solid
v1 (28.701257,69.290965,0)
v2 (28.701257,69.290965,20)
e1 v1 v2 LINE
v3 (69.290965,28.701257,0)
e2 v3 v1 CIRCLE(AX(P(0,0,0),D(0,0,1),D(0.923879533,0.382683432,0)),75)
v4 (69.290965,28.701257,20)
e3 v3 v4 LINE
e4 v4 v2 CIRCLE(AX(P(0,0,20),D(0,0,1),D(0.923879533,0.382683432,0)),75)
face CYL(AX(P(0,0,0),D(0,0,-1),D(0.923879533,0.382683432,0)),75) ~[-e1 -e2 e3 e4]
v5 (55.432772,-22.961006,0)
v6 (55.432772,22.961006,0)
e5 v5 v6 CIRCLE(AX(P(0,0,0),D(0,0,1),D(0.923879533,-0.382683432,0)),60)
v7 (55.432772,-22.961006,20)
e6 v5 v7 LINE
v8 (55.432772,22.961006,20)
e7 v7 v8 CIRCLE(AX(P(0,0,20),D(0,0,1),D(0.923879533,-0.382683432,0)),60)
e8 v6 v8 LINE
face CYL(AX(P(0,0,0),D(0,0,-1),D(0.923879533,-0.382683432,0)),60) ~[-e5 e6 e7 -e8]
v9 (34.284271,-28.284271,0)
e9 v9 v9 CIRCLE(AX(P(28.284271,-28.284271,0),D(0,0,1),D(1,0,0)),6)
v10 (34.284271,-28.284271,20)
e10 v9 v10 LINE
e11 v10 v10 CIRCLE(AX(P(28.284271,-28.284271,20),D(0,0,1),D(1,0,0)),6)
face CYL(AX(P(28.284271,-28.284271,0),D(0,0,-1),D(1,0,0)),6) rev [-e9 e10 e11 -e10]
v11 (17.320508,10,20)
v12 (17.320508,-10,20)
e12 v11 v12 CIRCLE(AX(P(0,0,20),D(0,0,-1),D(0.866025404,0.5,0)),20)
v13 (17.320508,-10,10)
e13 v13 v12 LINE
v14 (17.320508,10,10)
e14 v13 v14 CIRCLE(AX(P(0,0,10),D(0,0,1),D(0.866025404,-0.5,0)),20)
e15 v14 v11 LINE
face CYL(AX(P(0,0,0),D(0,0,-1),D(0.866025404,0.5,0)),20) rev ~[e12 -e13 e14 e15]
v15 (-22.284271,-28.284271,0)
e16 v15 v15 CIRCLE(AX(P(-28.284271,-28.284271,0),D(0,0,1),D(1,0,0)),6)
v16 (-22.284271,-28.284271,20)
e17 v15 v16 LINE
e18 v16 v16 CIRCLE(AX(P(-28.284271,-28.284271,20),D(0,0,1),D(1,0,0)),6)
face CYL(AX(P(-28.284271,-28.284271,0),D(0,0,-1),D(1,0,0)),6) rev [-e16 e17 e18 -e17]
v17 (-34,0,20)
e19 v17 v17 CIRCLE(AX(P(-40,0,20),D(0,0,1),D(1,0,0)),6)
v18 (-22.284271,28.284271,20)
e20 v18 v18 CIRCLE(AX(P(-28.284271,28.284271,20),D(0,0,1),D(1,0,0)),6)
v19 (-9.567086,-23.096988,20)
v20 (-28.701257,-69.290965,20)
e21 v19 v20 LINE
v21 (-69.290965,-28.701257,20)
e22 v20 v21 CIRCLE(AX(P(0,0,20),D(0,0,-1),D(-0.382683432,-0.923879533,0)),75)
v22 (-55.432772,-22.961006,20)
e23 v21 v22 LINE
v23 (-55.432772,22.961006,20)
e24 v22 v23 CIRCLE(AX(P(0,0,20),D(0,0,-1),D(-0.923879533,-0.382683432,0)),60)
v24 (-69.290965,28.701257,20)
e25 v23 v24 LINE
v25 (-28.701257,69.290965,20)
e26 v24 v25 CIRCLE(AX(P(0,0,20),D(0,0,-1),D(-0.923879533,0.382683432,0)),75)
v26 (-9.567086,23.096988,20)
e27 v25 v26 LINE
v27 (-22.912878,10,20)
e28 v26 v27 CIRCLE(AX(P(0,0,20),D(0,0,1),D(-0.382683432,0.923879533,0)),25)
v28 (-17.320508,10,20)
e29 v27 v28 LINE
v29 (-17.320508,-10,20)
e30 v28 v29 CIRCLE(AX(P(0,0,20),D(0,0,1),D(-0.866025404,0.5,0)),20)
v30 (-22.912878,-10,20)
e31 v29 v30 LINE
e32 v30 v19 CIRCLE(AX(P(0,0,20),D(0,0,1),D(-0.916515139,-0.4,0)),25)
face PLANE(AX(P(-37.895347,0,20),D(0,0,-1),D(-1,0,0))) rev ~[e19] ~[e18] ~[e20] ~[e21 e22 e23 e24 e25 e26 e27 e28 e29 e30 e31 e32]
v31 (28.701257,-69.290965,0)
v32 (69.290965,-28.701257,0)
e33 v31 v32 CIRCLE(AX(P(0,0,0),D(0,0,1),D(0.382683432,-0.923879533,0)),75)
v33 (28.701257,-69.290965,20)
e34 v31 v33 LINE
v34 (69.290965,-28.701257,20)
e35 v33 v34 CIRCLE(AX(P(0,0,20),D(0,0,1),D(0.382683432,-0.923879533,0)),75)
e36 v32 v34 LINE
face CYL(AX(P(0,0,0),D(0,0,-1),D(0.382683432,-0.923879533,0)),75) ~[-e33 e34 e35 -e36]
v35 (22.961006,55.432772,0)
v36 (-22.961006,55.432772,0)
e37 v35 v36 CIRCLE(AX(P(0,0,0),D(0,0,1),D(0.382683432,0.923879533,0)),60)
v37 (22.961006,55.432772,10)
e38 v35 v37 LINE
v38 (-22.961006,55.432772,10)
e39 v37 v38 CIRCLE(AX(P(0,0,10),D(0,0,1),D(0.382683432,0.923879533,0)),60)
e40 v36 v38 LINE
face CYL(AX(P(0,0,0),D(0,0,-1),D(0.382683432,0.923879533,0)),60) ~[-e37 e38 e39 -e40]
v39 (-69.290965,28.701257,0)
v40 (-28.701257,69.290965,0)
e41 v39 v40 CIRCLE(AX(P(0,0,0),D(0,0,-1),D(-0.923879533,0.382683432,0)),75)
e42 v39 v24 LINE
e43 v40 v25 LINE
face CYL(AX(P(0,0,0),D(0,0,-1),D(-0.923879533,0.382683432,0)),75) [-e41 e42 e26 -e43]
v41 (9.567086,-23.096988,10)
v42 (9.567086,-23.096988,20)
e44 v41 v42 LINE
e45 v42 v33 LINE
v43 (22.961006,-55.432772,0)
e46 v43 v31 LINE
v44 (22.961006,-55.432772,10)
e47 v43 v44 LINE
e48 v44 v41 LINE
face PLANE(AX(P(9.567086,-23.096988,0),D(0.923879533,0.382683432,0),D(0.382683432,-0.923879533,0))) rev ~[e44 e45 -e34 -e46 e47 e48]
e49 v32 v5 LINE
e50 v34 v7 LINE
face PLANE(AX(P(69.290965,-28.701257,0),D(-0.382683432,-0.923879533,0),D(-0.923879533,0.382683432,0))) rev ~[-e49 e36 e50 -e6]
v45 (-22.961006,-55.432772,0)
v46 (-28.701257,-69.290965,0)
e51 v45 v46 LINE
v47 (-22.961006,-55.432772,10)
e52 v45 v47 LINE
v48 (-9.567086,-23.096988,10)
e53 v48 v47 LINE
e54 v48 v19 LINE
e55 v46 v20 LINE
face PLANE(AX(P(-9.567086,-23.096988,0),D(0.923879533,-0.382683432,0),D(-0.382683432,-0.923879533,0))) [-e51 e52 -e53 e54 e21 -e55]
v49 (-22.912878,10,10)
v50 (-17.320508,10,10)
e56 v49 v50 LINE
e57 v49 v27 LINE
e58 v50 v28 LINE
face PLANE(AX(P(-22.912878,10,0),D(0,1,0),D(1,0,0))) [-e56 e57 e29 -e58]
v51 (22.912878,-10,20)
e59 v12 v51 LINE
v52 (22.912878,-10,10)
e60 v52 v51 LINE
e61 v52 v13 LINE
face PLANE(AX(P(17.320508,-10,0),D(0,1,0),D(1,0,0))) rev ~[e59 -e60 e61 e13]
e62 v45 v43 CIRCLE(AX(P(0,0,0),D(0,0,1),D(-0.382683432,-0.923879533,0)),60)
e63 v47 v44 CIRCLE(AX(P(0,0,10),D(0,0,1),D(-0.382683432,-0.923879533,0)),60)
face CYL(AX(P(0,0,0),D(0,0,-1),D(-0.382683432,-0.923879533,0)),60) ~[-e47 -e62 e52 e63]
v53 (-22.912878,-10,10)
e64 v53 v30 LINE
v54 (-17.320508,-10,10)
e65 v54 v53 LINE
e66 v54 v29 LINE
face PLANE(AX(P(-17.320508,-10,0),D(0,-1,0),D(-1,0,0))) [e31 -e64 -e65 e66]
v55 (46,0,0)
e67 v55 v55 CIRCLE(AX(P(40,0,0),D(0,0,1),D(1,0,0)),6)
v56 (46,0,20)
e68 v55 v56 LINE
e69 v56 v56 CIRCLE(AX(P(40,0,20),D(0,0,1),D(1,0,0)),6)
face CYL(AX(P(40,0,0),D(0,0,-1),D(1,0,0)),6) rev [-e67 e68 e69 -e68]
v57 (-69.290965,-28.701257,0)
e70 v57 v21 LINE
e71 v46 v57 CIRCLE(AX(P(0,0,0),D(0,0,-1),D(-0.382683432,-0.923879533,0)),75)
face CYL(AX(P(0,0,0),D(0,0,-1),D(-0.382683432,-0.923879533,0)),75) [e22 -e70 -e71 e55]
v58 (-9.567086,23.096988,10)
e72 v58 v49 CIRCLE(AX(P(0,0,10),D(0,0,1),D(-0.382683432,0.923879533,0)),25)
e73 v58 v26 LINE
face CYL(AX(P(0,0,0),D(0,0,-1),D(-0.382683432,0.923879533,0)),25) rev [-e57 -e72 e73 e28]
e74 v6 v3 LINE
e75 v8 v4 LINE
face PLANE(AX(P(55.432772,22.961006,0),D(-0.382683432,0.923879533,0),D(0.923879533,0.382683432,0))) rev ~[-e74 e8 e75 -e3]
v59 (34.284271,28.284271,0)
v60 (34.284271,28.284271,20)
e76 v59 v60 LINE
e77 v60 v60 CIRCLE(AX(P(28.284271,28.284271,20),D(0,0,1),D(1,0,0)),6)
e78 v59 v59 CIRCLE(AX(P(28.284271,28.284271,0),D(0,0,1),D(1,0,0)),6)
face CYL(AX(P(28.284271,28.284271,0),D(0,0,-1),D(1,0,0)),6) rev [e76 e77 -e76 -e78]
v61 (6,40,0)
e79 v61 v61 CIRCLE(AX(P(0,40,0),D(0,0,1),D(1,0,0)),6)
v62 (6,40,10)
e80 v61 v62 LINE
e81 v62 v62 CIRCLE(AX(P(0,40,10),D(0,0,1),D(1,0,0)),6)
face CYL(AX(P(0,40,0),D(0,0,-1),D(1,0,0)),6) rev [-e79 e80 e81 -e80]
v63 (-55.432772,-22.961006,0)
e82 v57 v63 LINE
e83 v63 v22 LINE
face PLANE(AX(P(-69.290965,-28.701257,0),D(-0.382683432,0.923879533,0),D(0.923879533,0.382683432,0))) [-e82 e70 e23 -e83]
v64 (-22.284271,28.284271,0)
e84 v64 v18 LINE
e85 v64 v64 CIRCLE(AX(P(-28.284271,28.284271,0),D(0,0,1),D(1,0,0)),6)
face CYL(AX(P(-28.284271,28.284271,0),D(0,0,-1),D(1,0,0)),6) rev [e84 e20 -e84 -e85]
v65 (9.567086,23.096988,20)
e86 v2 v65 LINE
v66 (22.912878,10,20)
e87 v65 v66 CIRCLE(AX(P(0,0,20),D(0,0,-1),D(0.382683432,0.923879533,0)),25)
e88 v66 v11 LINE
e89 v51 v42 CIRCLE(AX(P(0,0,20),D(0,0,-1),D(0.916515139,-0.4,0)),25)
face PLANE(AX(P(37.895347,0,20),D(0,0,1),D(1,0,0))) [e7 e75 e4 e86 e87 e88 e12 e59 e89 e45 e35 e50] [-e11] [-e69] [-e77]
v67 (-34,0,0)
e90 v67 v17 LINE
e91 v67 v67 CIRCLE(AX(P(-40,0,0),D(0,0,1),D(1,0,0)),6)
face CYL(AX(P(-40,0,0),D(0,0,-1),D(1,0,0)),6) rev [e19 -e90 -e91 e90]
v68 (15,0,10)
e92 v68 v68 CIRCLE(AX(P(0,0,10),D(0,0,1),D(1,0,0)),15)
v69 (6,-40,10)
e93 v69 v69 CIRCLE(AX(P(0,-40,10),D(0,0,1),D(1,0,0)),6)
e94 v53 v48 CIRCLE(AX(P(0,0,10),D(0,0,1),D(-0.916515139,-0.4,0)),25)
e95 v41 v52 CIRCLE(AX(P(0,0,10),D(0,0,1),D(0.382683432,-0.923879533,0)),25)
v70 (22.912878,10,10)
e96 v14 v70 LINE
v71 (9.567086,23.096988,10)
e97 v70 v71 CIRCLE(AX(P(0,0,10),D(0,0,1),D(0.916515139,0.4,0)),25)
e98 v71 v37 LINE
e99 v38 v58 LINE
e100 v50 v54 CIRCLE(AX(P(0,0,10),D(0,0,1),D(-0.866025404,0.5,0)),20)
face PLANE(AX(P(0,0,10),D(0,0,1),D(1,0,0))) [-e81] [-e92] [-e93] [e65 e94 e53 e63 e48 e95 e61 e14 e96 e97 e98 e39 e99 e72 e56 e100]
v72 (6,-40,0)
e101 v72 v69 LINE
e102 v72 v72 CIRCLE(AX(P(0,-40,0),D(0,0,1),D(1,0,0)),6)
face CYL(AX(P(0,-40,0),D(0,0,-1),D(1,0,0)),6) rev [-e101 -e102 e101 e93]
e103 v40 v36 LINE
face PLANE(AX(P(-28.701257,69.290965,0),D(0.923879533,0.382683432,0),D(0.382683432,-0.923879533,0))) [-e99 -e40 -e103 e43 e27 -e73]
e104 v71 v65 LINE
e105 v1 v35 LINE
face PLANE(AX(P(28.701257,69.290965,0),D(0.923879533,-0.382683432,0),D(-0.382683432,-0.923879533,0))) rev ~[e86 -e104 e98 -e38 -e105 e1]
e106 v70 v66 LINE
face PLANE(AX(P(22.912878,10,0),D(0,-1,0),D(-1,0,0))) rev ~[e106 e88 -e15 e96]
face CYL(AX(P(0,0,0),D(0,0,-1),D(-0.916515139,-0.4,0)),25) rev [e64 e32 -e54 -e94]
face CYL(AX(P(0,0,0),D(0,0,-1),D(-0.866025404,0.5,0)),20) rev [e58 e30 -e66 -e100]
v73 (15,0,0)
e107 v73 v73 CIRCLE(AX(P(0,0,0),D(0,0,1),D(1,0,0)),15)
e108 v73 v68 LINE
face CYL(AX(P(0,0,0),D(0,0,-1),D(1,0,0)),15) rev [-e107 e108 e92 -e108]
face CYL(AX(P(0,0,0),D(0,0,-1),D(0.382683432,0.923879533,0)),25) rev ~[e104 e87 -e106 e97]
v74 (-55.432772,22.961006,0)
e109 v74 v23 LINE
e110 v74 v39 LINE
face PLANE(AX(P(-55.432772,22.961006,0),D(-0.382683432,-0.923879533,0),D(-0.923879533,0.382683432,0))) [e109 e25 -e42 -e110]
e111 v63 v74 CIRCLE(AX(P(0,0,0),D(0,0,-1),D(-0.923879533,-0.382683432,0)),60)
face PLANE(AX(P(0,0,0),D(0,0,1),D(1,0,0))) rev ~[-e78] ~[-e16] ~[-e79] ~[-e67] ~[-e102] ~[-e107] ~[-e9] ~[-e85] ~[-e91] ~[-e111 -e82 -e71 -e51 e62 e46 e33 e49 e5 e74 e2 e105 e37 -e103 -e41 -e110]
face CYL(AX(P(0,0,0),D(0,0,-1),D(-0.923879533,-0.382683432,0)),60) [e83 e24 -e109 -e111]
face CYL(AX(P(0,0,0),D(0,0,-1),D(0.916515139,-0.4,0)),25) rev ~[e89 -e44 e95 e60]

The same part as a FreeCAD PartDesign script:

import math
import FreeCAD as App
import Part
import Sketcher
Q = App.Units.Quantity

doc = App.newDocument("Part")
body = doc.addObject("PartDesign::Body", "Body")

sketch1 = body.newObject("Sketcher::SketchObject", "Sketch")
sketch1.AttachmentSupport = (doc.getObject("XY_Plane"), [""])
sketch1.MapMode = "FlatFace"
sketch1.addGeometry([
    Part.LineSegment(App.Vector(17.320508, -10, 0), App.Vector(22.912878, -10, 0)),
    Part.ArcOfCircle(Part.Circle(App.Vector(0, 0, 0), App.Vector(0, 0, 1), 25), math.radians(-67.5), math.radians(-23.578178)),
    Part.LineSegment(App.Vector(9.567086, -23.096988, 0), App.Vector(28.701257, -69.290965, 0)),
    Part.ArcOfCircle(Part.Circle(App.Vector(0, 0, 0), App.Vector(0, 0, 1), 75), math.radians(-67.5), math.radians(-22.5)),
    Part.LineSegment(App.Vector(69.290965, -28.701257, 0), App.Vector(55.432772, -22.961006, 0)),
    Part.ArcOfCircle(Part.Circle(App.Vector(0, 0, 0), App.Vector(0, 0, 1), 60), math.radians(-22.5), math.radians(22.5)),
    Part.LineSegment(App.Vector(55.432772, 22.961006, 0), App.Vector(69.290965, 28.701257, 0)),
    Part.ArcOfCircle(Part.Circle(App.Vector(0, 0, 0), App.Vector(0, 0, 1), 75), math.radians(22.5), math.radians(67.5)),
    Part.LineSegment(App.Vector(28.701257, 69.290965, 0), App.Vector(9.567086, 23.096988, 0)),
    Part.ArcOfCircle(Part.Circle(App.Vector(0, 0, 0), App.Vector(0, 0, 1), 25), math.radians(23.578178), math.radians(67.5)),
    Part.LineSegment(App.Vector(22.912878, 10, 0), App.Vector(17.320508, 10, 0)),
    Part.ArcOfCircle(Part.Circle(App.Vector(0, 0, 0), App.Vector(0, 0, 1), 20), math.radians(-30), math.radians(30)),
    Part.Circle(App.Vector(28.284271, -28.284271, 0), App.Vector(0, 0, 1), 6),
    Part.Circle(App.Vector(28.284271, 28.284271, 0), App.Vector(0, 0, 1), 6),
    Part.Circle(App.Vector(40, 0, 0), App.Vector(0, 0, 1), 6),
], False)
sketch1.addConstraint([
    Sketcher.Constraint("Coincident", 0, 2, 1, 2),
    Sketcher.Constraint("Coincident", 1, 1, 2, 1),
    Sketcher.Constraint("Coincident", 2, 2, 3, 1),
    Sketcher.Constraint("Coincident", 3, 2, 4, 1),
    Sketcher.Constraint("Coincident", 4, 2, 5, 1),
    Sketcher.Constraint("Coincident", 5, 2, 6, 1),
    Sketcher.Constraint("Coincident", 6, 2, 7, 1),
    Sketcher.Constraint("Coincident", 7, 2, 8, 1),
    Sketcher.Constraint("Coincident", 8, 2, 9, 2),
    Sketcher.Constraint("Coincident", 9, 1, 10, 1),
    Sketcher.Constraint("Coincident", 10, 2, 11, 2),
    Sketcher.Constraint("Coincident", 11, 1, 0, 1),
    Sketcher.Constraint("Horizontal", 0),
    Sketcher.Constraint("Horizontal", 10),
    Sketcher.Constraint("Coincident", 1, 3, -1, 1),
    Sketcher.Constraint("Coincident", 3, 3, -1, 1),
    Sketcher.Constraint("Coincident", 5, 3, -1, 1),
    Sketcher.Constraint("Coincident", 7, 3, -1, 1),
    Sketcher.Constraint("Coincident", 9, 3, -1, 1),
    Sketcher.Constraint("Coincident", 11, 3, -1, 1),
    Sketcher.Constraint("Equal", 3, 7),
    Sketcher.Constraint("Equal", 1, 9),
    Sketcher.Constraint("Equal", 12, 13),
    Sketcher.Constraint("Equal", 13, 14),
    Sketcher.Constraint("Symmetric", 12, 3, 13, 3, -1),
    Sketcher.Constraint("PointOnObject", 14, 3, -1),
    Sketcher.Constraint("Perpendicular", 2, 6),
    Sketcher.Constraint("Perpendicular", 4, 8),
    Sketcher.Constraint("Vertical", 4, 2, 5, 2),
    Sketcher.Constraint("Vertical", 3, 2, 6, 2),
    Sketcher.Constraint("Vertical", 2, 2, 7, 2),
    Sketcher.Constraint("Vertical", 0, 2, 9, 1),
    Sketcher.Constraint("Diameter", 12, 12.0),
    Sketcher.Constraint("Radius", 1, 25.0),
    Sketcher.Constraint("Radius", 3, 75.0),
    Sketcher.Constraint("Radius", 5, 60.0),
    Sketcher.Constraint("Radius", 11, 20.0),
    Sketcher.Constraint("DistanceX", -1, 1, 14, 3, 40.0),
    Sketcher.Constraint("DistanceY", 0, 2, -1, 1, 10.0),
    Sketcher.Constraint("Angle", 2, Q("-67.5 deg")),
    Sketcher.Constraint("DistanceX", 12, 3, 4, 2, 27.148501),
    Sketcher.Constraint("DistanceX", -1, 1, 12, 3, 28.284271),
    Sketcher.Constraint("DistanceY", 12, 3, -1, 1, 28.284271),
    Sketcher.Constraint("DistanceY", 1, 1, -1, 1, 23.096988),
])
pad1 = body.newObject("PartDesign::Pad", "Pad")
pad1.Profile = sketch1
pad1.Length = 20
body2 = doc.addObject("PartDesign::Body", "Body001")

sketch2 = body2.newObject("Sketcher::SketchObject", "Sketch001")
sketch2.AttachmentSupport = (doc.getObject("XY_Plane001"), [""])
sketch2.MapMode = "FlatFace"
sketch2.addGeometry([
    Part.ArcOfCircle(Part.Circle(App.Vector(0, 0, 0), App.Vector(0, 0, 1), 75), math.radians(-157.5), math.radians(-112.5)),
    Part.LineSegment(App.Vector(-28.701257, -69.290965, 0), App.Vector(-9.567086, -23.096988, 0)),
    Part.ArcOfCircle(Part.Circle(App.Vector(0, 0, 0), App.Vector(0, 0, 1), 25), math.radians(-156.421822), math.radians(-112.5)),
    Part.LineSegment(App.Vector(-22.912878, -10, 0), App.Vector(-17.320508, -10, 0)),
    Part.ArcOfCircle(Part.Circle(App.Vector(0, 0, 0), App.Vector(0, 0, 1), 20), math.radians(150), math.radians(210)),
    Part.LineSegment(App.Vector(-17.320508, 10, 0), App.Vector(-22.912878, 10, 0)),
    Part.ArcOfCircle(Part.Circle(App.Vector(0, 0, 0), App.Vector(0, 0, 1), 25), math.radians(112.5), math.radians(156.421822)),
    Part.LineSegment(App.Vector(-9.567086, 23.096988, 0), App.Vector(-28.701257, 69.290965, 0)),
    Part.ArcOfCircle(Part.Circle(App.Vector(0, 0, 0), App.Vector(0, 0, 1), 75), math.radians(112.5), math.radians(157.5)),
    Part.LineSegment(App.Vector(-69.290965, 28.701257, 0), App.Vector(-55.432772, 22.961006, 0)),
    Part.ArcOfCircle(Part.Circle(App.Vector(0, 0, 0), App.Vector(0, 0, 1), 60), math.radians(157.5), math.radians(202.5)),
    Part.LineSegment(App.Vector(-55.432772, -22.961006, 0), App.Vector(-69.290965, -28.701257, 0)),
    Part.Circle(App.Vector(-28.284271, -28.284271, 0), App.Vector(0, 0, 1), 6),
    Part.Circle(App.Vector(-28.284271, 28.284271, 0), App.Vector(0, 0, 1), 6),
    Part.Circle(App.Vector(-40, 0, 0), App.Vector(0, 0, 1), 6),
], False)
sketch2.addConstraint([
    Sketcher.Constraint("Coincident", 0, 2, 1, 1),
    Sketcher.Constraint("Coincident", 1, 2, 2, 2),
    Sketcher.Constraint("Coincident", 2, 1, 3, 1),
    Sketcher.Constraint("Coincident", 3, 2, 4, 2),
    Sketcher.Constraint("Coincident", 4, 1, 5, 1),
    Sketcher.Constraint("Coincident", 5, 2, 6, 2),
    Sketcher.Constraint("Coincident", 6, 1, 7, 1),
    Sketcher.Constraint("Coincident", 7, 2, 8, 1),
    Sketcher.Constraint("Coincident", 8, 2, 9, 1),
    Sketcher.Constraint("Coincident", 9, 2, 10, 1),
    Sketcher.Constraint("Coincident", 10, 2, 11, 1),
    Sketcher.Constraint("Coincident", 11, 2, 0, 1),
    Sketcher.Constraint("Horizontal", 3),
    Sketcher.Constraint("Horizontal", 5),
    Sketcher.Constraint("Coincident", 0, 3, -1, 1),
    Sketcher.Constraint("Coincident", 2, 3, -1, 1),
    Sketcher.Constraint("Coincident", 4, 3, -1, 1),
    Sketcher.Constraint("Coincident", 6, 3, -1, 1),
    Sketcher.Constraint("Coincident", 8, 3, -1, 1),
    Sketcher.Constraint("Coincident", 10, 3, -1, 1),
    Sketcher.Constraint("Equal", 2, 6),
    Sketcher.Constraint("Equal", 0, 8),
    Sketcher.Constraint("Equal", 12, 13),
    Sketcher.Constraint("Equal", 13, 14),
    Sketcher.Constraint("Symmetric", 12, 3, 13, 3, -1),
    Sketcher.Constraint("PointOnObject", 14, 3, -1),
    Sketcher.Constraint("Perpendicular", 1, 9),
    Sketcher.Constraint("Perpendicular", 7, 11),
    Sketcher.Constraint("Vertical", 3, 2, 4, 1),
    Sketcher.Constraint("Vertical", 1, 2, 6, 1),
    Sketcher.Constraint("Vertical", 0, 2, 7, 2),
    Sketcher.Constraint("Vertical", 9, 2, 10, 2),
    Sketcher.Constraint("Diameter", 12, 12.0),
    Sketcher.Constraint("Radius", 0, 75.0),
    Sketcher.Constraint("Radius", 2, 25.0),
    Sketcher.Constraint("Radius", 4, 20.0),
    Sketcher.Constraint("Radius", 10, 60.0),
    Sketcher.Constraint("DistanceX", 14, 3, -1, 1, 40.0),
    Sketcher.Constraint("DistanceY", 2, 1, -1, 1, 10.0),
    Sketcher.Constraint("Angle", 1, Q("67.5 deg")),
    Sketcher.Constraint("DistanceX", 9, 2, 13, 3, 27.148501),
    Sketcher.Constraint("DistanceX", 12, 3, -1, 1, 28.284271),
    Sketcher.Constraint("DistanceY", 12, 3, -1, 1, 28.284271),
    Sketcher.Constraint("DistanceY", 1, 2, -1, 1, 23.096988),
])
pad2 = body2.newObject("PartDesign::Pad", "Pad001")
pad2.Profile = sketch2
pad2.Length = 20
body.AllowCompound = True
doc.recompute()

boolean = body.newObject("PartDesign::Boolean", "Boolean")
boolean.Type = "Fuse"
boolean.addObjects([body2])

sketch3 = body.newObject("Sketcher::SketchObject", "Sketch002")
sketch3.AttachmentSupport = (doc.getObject("XY_Plane"), [""])
sketch3.MapMode = "FlatFace"
sketch3.addGeometry([
    Part.ArcOfCircle(Part.Circle(App.Vector(0, 0, 0), App.Vector(0, 0, 1), 20), math.radians(-30), math.radians(30)),
    Part.LineSegment(App.Vector(17.320508, 10, 0), App.Vector(22.912878, 10, 0)),
    Part.ArcOfCircle(Part.Circle(App.Vector(0, 0, 0), App.Vector(0, 0, 1), 25), math.radians(23.578178), math.radians(67.5)),
    Part.LineSegment(App.Vector(9.567086, 23.096988, 0), App.Vector(22.961006, 55.432772, 0)),
    Part.ArcOfCircle(Part.Circle(App.Vector(0, 0, 0), App.Vector(0, 0, 1), 60), math.radians(67.5), math.radians(112.5)),
    Part.LineSegment(App.Vector(-22.961006, 55.432772, 0), App.Vector(-9.567086, 23.096988, 0)),
    Part.ArcOfCircle(Part.Circle(App.Vector(0, 0, 0), App.Vector(0, 0, 1), 25), math.radians(112.5), math.radians(156.421822)),
    Part.LineSegment(App.Vector(-22.912878, 10, 0), App.Vector(-17.320508, 10, 0)),
    Part.ArcOfCircle(Part.Circle(App.Vector(0, 0, 0), App.Vector(0, 0, 1), 20), math.radians(150), math.radians(210)),
    Part.LineSegment(App.Vector(-17.320508, -10, 0), App.Vector(-22.912878, -10, 0)),
    Part.ArcOfCircle(Part.Circle(App.Vector(0, 0, 0), App.Vector(0, 0, 1), 25), math.radians(-156.421822), math.radians(-112.5)),
    Part.LineSegment(App.Vector(-9.567086, -23.096988, 0), App.Vector(-22.961006, -55.432772, 0)),
    Part.ArcOfCircle(Part.Circle(App.Vector(0, 0, 0), App.Vector(0, 0, 1), 60), math.radians(-112.5), math.radians(-67.5)),
    Part.LineSegment(App.Vector(22.961006, -55.432772, 0), App.Vector(9.567086, -23.096988, 0)),
    Part.ArcOfCircle(Part.Circle(App.Vector(0, 0, 0), App.Vector(0, 0, 1), 25), math.radians(-67.5), math.radians(-23.578178)),
    Part.LineSegment(App.Vector(22.912878, -10, 0), App.Vector(17.320508, -10, 0)),
    Part.Circle(App.Vector(0, -40, 0), App.Vector(0, 0, 1), 6),
    Part.Circle(App.Vector(0, 0, 0), App.Vector(0, 0, 1), 15),
    Part.Circle(App.Vector(0, 40, 0), App.Vector(0, 0, 1), 6),
], False)
sketch3.addConstraint([
    Sketcher.Constraint("Coincident", 0, 2, 1, 1),
    Sketcher.Constraint("Coincident", 1, 2, 2, 1),
    Sketcher.Constraint("Coincident", 2, 2, 3, 1),
    Sketcher.Constraint("Coincident", 3, 2, 4, 1),
    Sketcher.Constraint("Coincident", 4, 2, 5, 1),
    Sketcher.Constraint("Coincident", 5, 2, 6, 1),
    Sketcher.Constraint("Coincident", 6, 2, 7, 1),
    Sketcher.Constraint("Coincident", 7, 2, 8, 1),
    Sketcher.Constraint("Coincident", 8, 2, 9, 1),
    Sketcher.Constraint("Coincident", 9, 2, 10, 1),
    Sketcher.Constraint("Coincident", 10, 2, 11, 1),
    Sketcher.Constraint("Coincident", 11, 2, 12, 1),
    Sketcher.Constraint("Coincident", 12, 2, 13, 1),
    Sketcher.Constraint("Coincident", 13, 2, 14, 1),
    Sketcher.Constraint("Coincident", 14, 2, 15, 1),
    Sketcher.Constraint("Coincident", 15, 2, 0, 1),
    Sketcher.Constraint("Horizontal", 1),
    Sketcher.Constraint("Horizontal", 7),
    Sketcher.Constraint("Horizontal", 9),
    Sketcher.Constraint("Horizontal", 15),
    Sketcher.Constraint("Coincident", 0, 3, -1, 1),
    Sketcher.Constraint("Coincident", 2, 3, -1, 1),
    Sketcher.Constraint("Coincident", 4, 3, -1, 1),
    Sketcher.Constraint("Coincident", 6, 3, -1, 1),
    Sketcher.Constraint("Coincident", 8, 3, -1, 1),
    Sketcher.Constraint("Coincident", 10, 3, -1, 1),
    Sketcher.Constraint("Coincident", 12, 3, -1, 1),
    Sketcher.Constraint("Coincident", 14, 3, -1, 1),
    Sketcher.Constraint("Coincident", 17, 3, -1, 1),
    Sketcher.Constraint("Equal", 2, 6),
    Sketcher.Constraint("Equal", 0, 8),
    Sketcher.Constraint("Equal", 6, 10),
    Sketcher.Constraint("Equal", 4, 12),
    Sketcher.Constraint("Equal", 10, 14),
    Sketcher.Constraint("Equal", 16, 18),
    Sketcher.Constraint("Symmetric", 16, 3, 18, 3, -1, 1),
    Sketcher.Constraint("PointOnObject", 16, 3, -2),
    Sketcher.Constraint("Parallel", 3, 11),
    Sketcher.Constraint("Parallel", 5, 13),
    Sketcher.Constraint("Horizontal", 3, 2, 4, 2),
    Sketcher.Constraint("Horizontal", 2, 2, 5, 2),
    Sketcher.Constraint("Horizontal", 1, 2, 6, 2),
    Sketcher.Constraint("Horizontal", 11, 2, 12, 2),
    Sketcher.Constraint("Horizontal", 9, 2, 14, 2),
    Sketcher.Constraint("Vertical", 7, 2, 8, 2),
    Sketcher.Constraint("Vertical", 5, 2, 10, 2),
    Sketcher.Constraint("Diameter", 16, 12.0),
    Sketcher.Constraint("Diameter", 17, 30.0),
    Sketcher.Constraint("Radius", 0, 20.0),
    Sketcher.Constraint("Radius", 2, 25.0),
    Sketcher.Constraint("Radius", 4, 60.0),
    Sketcher.Constraint("DistanceY", 16, 3, -1, 1, 40.0),
    Sketcher.Constraint("DistanceY", -1, 1, 0, 2, 10.0),
    Sketcher.Constraint("Angle", 3, Q("67.5 deg")),
    Sketcher.Constraint("DistanceY", -1, 1, 2, 2, 23.096988),
])
pad3 = body.newObject("PartDesign::Pad", "Pad002")
pad3.Profile = sketch3
pad3.Length = 10

doc.recompute()
